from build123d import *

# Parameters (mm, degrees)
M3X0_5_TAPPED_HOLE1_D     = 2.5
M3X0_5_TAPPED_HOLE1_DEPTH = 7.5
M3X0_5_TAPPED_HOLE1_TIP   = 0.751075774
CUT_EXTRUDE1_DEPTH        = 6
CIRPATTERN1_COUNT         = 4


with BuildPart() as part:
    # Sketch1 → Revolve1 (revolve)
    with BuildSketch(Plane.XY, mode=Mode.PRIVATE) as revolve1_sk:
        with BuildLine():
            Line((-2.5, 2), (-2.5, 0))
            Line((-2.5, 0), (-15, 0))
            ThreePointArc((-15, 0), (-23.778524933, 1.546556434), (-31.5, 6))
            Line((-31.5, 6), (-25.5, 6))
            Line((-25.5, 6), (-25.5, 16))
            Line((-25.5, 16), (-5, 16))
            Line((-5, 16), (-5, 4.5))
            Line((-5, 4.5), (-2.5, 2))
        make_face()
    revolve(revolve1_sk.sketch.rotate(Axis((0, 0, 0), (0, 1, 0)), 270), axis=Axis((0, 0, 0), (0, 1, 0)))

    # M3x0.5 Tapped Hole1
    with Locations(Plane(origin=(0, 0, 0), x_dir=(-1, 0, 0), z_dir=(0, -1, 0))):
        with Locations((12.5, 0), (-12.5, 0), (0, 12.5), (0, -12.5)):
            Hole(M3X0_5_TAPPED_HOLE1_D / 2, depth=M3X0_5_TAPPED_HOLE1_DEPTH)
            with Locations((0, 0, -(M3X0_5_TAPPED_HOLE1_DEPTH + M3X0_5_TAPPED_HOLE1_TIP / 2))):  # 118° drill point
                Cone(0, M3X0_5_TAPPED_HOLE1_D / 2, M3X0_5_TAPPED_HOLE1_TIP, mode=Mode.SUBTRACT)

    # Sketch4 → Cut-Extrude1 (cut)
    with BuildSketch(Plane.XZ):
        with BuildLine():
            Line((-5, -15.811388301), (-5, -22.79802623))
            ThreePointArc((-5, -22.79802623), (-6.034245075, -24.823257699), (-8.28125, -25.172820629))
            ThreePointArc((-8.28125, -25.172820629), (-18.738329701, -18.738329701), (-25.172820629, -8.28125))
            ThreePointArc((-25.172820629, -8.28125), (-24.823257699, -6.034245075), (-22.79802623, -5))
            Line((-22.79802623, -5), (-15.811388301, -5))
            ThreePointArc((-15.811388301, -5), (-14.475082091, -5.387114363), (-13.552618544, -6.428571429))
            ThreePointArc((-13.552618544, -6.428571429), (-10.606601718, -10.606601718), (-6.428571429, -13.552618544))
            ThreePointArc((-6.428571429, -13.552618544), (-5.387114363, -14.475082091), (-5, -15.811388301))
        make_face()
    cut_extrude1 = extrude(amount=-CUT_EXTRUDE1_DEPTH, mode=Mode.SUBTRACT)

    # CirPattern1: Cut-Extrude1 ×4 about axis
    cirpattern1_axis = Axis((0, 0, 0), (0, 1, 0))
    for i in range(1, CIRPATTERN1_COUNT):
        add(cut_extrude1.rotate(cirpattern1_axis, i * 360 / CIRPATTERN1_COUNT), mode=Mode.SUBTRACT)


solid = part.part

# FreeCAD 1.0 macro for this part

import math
import FreeCAD as App
import Part
import Sketcher
from FreeCAD import Vector
Q = App.Units.Quantity

doc = App.newDocument("Part")
body = doc.addObject("PartDesign::Body", "Body")

# Sketch on XY plane
sketch1 = doc.addObject("Sketcher::SketchObject", "Sketch")
body.addObject(sketch1)
sketch1.AttachmentSupport = (doc.XY_Plane, [""])
sketch1.MapMode = "FlatFace"
sketch1.addGeometry(Part.LineSegment(Vector(-2.5, 0, 0), Vector(-2.5, 2, 0)), False)
sketch1.addGeometry(Part.LineSegment(Vector(-2.5, 2, 0), Vector(-5, 4.5, 0)), False)
sketch1.addGeometry(Part.LineSegment(Vector(-5, 4.5, 0), Vector(-5, 16, 0)), False)
sketch1.addGeometry(Part.LineSegment(Vector(-5, 16, 0), Vector(-25.5, 16, 0)), False)
sketch1.addGeometry(Part.LineSegment(Vector(-25.5, 16, 0), Vector(-25.5, 6, 0)), False)
sketch1.addGeometry(Part.LineSegment(Vector(-25.5, 6, 0), Vector(-31.5, 6, 0)), False)
sketch1.addGeometry(Part.ArcOfCircle(Part.Circle(Vector(-15, 25.7, 0), Vector(0, 0, 1), 25.7), math.radians(-130), math.radians(-90)), False)
sketch1.addGeometry(Part.LineSegment(Vector(-15, 0, 0), Vector(-2.5, 0, 0)), False)
sketch1.addConstraint(Sketcher.Constraint("Coincident", 0, 2, 1, 1))
sketch1.addConstraint(Sketcher.Constraint("Coincident", 1, 2, 2, 1))
sketch1.addConstraint(Sketcher.Constraint("Coincident", 2, 2, 3, 1))
sketch1.addConstraint(Sketcher.Constraint("Coincident", 3, 2, 4, 1))
sketch1.addConstraint(Sketcher.Constraint("Coincident", 4, 2, 5, 1))
sketch1.addConstraint(Sketcher.Constraint("Coincident", 5, 2, 6, 1))
sketch1.addConstraint(Sketcher.Constraint("Tangent", 6, 2, 7, 1))
sketch1.addConstraint(Sketcher.Constraint("Coincident", 7, 2, 0, 1))
sketch1.addConstraint(Sketcher.Constraint("Vertical", 0))
sketch1.addConstraint(Sketcher.Constraint("Vertical", 2))
sketch1.addConstraint(Sketcher.Constraint("Horizontal", 3))
sketch1.addConstraint(Sketcher.Constraint("Vertical", 4))
sketch1.addConstraint(Sketcher.Constraint("Horizontal", 5))
sketch1.addConstraint(Sketcher.Constraint("Horizontal", 7))
sketch1.addConstraint(Sketcher.Constraint("PointOnObject", 6, 2, -1))
sketch1.addConstraint(Sketcher.Constraint("DistanceX", 5, 2, 5, 1, Q("6 mm")))
sketch1.addConstraint(Sketcher.Constraint("DistanceY", 0, 1, 0, 2, Q("2 mm")))
sketch1.addConstraint(Sketcher.Constraint("DistanceY", 4, 2, 4, 1, Q("10 mm")))
sketch1.addConstraint(Sketcher.Constraint("Angle", 1, Q("135 deg")))
sketch1.addConstraint(Sketcher.Constraint("DistanceX", 3, 2, 3, 1, Q("20.5 mm")))
sketch1.addConstraint(Sketcher.Constraint("DistanceX", 7, 1, 7, 2, Q("12.5 mm")))
sketch1.addConstraint(Sketcher.Constraint("DistanceY", 2, 1, 2, 2, Q("11.5 mm")))
sketch1.addConstraint(Sketcher.Constraint("DistanceX", 6, 3, -1, 1, Q("15 mm")))
sketch1.addConstraint(Sketcher.Constraint("DistanceX", 1, 2, -1, 1, Q("5 mm")))
revolution = doc.addObject("PartDesign::Revolution", "Revolution")
body.addObject(revolution)
revolution.Profile = sketch1
revolution.ReferenceAxis = (sketch1, ["V_Axis"])
revolution.Angle = 360

# Sketch on XZ plane
sketch2 = doc.addObject("Sketcher::SketchObject", "Sketch001")
body.addObject(sketch2)
sketch2.AttachmentSupport = (doc.XZ_Plane, [""])
sketch2.MapMode = "FlatFace"
sketch2.addGeometry(Part.Circle(Vector(-12.5, 0, 0), Vector(0, 0, 1), 1.2), False)
sketch2.addGeometry(Part.Circle(Vector(12.5, 0, 0), Vector(0, 0, 1), 1.2), False)
sketch2.addGeometry(Part.Circle(Vector(0, -12.5, 0), Vector(0, 0, 1), 1.2), False)
sketch2.addGeometry(Part.Circle(Vector(0, 12.5, 0), Vector(0, 0, 1), 1.2), False)
sketch2.addConstraint(Sketcher.Constraint("Equal", 0, 1))
sketch2.addConstraint(Sketcher.Constraint("Equal", 1, 2))
sketch2.addConstraint(Sketcher.Constraint("Equal", 2, 3))
sketch2.addConstraint(Sketcher.Constraint("Symmetric", 0, 3, 1, 3, -1, 1))
sketch2.addConstraint(Sketcher.Constraint("Symmetric", 2, 3, 3, 3, -1, 1))
sketch2.addConstraint(Sketcher.Constraint("PointOnObject", 0, 3, -1))
sketch2.addConstraint(Sketcher.Constraint("PointOnObject", 2, 3, -2))
sketch2.addConstraint(Sketcher.Constraint("Diameter", 0, Q("2.5 mm")))
sketch2.addConstraint(Sketcher.Constraint("DistanceX", 0, 3, 1, 3, Q("25 mm")))
sketch2.addConstraint(Sketcher.Constraint("DistanceY", 2, 3, 3, 3, Q("25 mm")))
doc.recompute()
hole = doc.addObject("PartDesign::Hole", "Hole")
body.addObject(hole)
hole.Profile = sketch2
hole.ThreadType = "None"
hole.Diameter = 2.5
hole.DepthType = "Dimension"
hole.Depth = 7.5
hole.DrillPoint = "Angled"
hole.DrillPointAngle = 118

# Sketch on XZ plane
sketch3 = doc.addObject("Sketcher::SketchObject", "Sketch002")
body.addObject(sketch3)
sketch3.AttachmentSupport = (doc.XZ_Plane, [""])
sketch3.MapMode = "FlatFace"
sketch3.addGeometry(Part.LineSegment(Vector(-5, -22.8, 0), Vector(-5, -15.8, 0)), False)
sketch3.addGeometry(Part.ArcOfCircle(Part.Circle(Vector(-7.5, -15.8, 0), Vector(0, 0, 1), 2.5), math.radians(0), math.radians(65)), False)
sketch3.addGeometry(Part.ArcOfCircle(Part.Circle(Vector(0, 0, 0), Vector(0, 0, 1), 15), math.radians(-155), math.radians(-115)), False)
sketch3.addGeometry(Part.ArcOfCircle(Part.Circle(Vector(-15.8, -7.5, 0), Vector(0, 0, 1), 2.5), math.radians(25), math.radians(90)), False)
sketch3.addGeometry(Part.LineSegment(Vector(-15.8, -5, 0), Vector(-22.8, -5, 0)), False)
sketch3.addGeometry(Part.ArcOfCircle(Part.Circle(Vector(-22.8, -7.5, 0), Vector(0, 0, 1), 2.5), math.radians(90), math.radians(198)), False)
sketch3.addGeometry(Part.ArcOfCircle(Part.Circle(Vector(0, 0, 0), Vector(0, 0, 1), 26.5), math.radians(-162), math.radians(-108)), False)
sketch3.addGeometry(Part.ArcOfCircle(Part.Circle(Vector(-7.5, -22.8, 0), Vector(0, 0, 1), 2.5), math.radians(-108), math.radians(0)), False)
sketch3.addConstraint(Sketcher.Constraint("Tangent", 0, 2, 1, 1))
sketch3.addConstraint(Sketcher.Constraint("Tangent", 1, 2, 2, 2))
sketch3.addConstraint(Sketcher.Constraint("Tangent", 2, 1, 3, 1))
sketch3.addConstraint(Sketcher.Constraint("Tangent", 3, 2, 4, 1))
sketch3.addConstraint(Sketcher.Constraint("Tangent", 4, 2, 5, 1))
sketch3.addConstraint(Sketcher.Constraint("Tangent", 5, 2, 6, 1))
sketch3.addConstraint(Sketcher.Constraint("Tangent", 6, 2, 7, 1))
sketch3.addConstraint(Sketcher.Constraint("Tangent", 7, 2, 0, 1))
sketch3.addConstraint(Sketcher.Constraint("Vertical", 0))
sketch3.addConstraint(Sketcher.Constraint("Horizontal", 4))
sketch3.addConstraint(Sketcher.Constraint("Coincident", 2, 3, -1, 1))
sketch3.addConstraint(Sketcher.Constraint("Coincident", 6, 3, -1, 1))
sketch3.addConstraint(Sketcher.Constraint("Equal", 1, 3))
sketch3.addConstraint(Sketcher.Constraint("Equal", 3, 5))
sketch3.addConstraint(Sketcher.Constraint("Equal", 5, 7))
sketch3.addConstraint(Sketcher.Constraint("Equal", 4, 0))
sketch3.addConstraint(Sketcher.Constraint("Radius", 2, Q("15 mm")))
sketch3.addConstraint(Sketcher.Constraint("Radius", 1, Q("2.5 mm")))
sketch3.addConstraint(Sketcher.Constraint("Radius", 6, Q("26.5 mm")))
sketch3.addConstraint(Sketcher.Constraint("DistanceX", 0, 2, -1, 1, Q("5 mm")))
pocket1 = doc.addObject("PartDesign::Pocket", "Pocket")
body.addObject(pocket1)
pocket1.Profile = sketch3
pocket1.Length = 6
doc.recompute()

polarpattern = doc.addObject("PartDesign::PolarPattern", "PolarPattern")
body.addObject(polarpattern)
polarpattern.Originals = [pocket1]
polarpattern.Axis = (doc.Y_Axis, [""])
polarpattern.Angle = 360
polarpattern.Occurrences = 4
body.Tip = polarpattern

doc.recompute()
